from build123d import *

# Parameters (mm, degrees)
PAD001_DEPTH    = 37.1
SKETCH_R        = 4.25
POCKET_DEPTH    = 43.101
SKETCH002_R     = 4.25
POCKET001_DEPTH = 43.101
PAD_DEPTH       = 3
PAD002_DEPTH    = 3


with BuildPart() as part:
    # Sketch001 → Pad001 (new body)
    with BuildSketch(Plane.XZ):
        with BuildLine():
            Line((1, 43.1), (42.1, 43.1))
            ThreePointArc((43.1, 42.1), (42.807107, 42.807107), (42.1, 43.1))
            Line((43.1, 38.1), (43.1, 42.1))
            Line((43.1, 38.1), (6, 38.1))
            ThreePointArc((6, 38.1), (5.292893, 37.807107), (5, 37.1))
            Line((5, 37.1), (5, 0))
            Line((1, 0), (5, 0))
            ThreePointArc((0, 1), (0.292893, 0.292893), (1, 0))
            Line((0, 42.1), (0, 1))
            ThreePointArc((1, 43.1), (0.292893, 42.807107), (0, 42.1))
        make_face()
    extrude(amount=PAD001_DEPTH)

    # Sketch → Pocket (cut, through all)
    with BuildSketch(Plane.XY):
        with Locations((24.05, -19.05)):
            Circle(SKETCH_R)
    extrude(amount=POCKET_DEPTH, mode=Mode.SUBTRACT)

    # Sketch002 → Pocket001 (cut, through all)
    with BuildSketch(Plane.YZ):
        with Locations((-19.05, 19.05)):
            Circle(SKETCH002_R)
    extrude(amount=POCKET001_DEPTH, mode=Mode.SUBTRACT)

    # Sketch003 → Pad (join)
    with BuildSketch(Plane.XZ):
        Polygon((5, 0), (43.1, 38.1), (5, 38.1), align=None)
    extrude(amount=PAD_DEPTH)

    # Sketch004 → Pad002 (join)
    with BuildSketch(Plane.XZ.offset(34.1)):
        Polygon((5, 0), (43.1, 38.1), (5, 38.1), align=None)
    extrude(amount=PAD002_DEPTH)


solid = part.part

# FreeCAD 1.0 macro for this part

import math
import FreeCAD as App
import Part
import Sketcher

V = App.Vector


def add_polygon(sketch, points):
    """Adds a closed chain of lines whose ends are joined by coincident constraints."""
    first, n = sketch.GeometryCount, len(points)
    for a, b in zip(points, points[1:] + points[:1]):
        sketch.addGeometry(Part.LineSegment(App.Vector(*a, 0), App.Vector(*b, 0)), False)
    for i in range(n):
        sketch.addConstraint(Sketcher.Constraint("Coincident", first + i, 2, first + (i + 1) % n, 1))

doc = App.newDocument("Part")
body = doc.addObject("PartDesign::Body", "Body")

sketch1 = body.newObject("Sketcher::SketchObject", "Sketch")
sketch1.AttachmentSupport = (doc.getObject("XZ_Plane"), [""])
sketch1.MapMode = "FlatFace"
sketch1.addGeometry(Part.LineSegment(V(42.1, 43.1, 0), V(1, 43.1, 0)), False)
sketch1.addGeometry(Part.ArcOfCircle(Part.Circle(V(1, 42.1, 0), V(0, 0, 1), 1), math.radians(90), math.radians(180)), False)
sketch1.addGeometry(Part.LineSegment(V(0, 42.1, 0), V(0, 1, 0)), False)
sketch1.addGeometry(Part.ArcOfCircle(Part.Circle(V(1, 1, 0), V(0, 0, 1), 1), math.radians(180), math.radians(270)), False)
sketch1.addGeometry(Part.LineSegment(V(1, 0, 0), V(5, 0, 0)), False)
sketch1.addGeometry(Part.LineSegment(V(5, 0, 0), V(5, 37.1, 0)), False)
sketch1.addGeometry(Part.ArcOfCircle(Part.Circle(V(6, 37.1, 0), V(0, 0, 1), 1), math.radians(90), math.radians(180)), False)
sketch1.addGeometry(Part.LineSegment(V(6, 38.1, 0), V(43.1, 38.1, 0)), False)
sketch1.addGeometry(Part.LineSegment(V(43.1, 38.1, 0), V(43.1, 42.1, 0)), False)
sketch1.addGeometry(Part.ArcOfCircle(Part.Circle(V(42.1, 42.1, 0), V(0, 0, 1), 1), math.radians(0), math.radians(90)), False)
sketch1.addConstraint(Sketcher.Constraint("Tangent", 0, 2, 1, 1))
sketch1.addConstraint(Sketcher.Constraint("Tangent", 1, 2, 2, 1))
sketch1.addConstraint(Sketcher.Constraint("Tangent", 2, 2, 3, 1))
sketch1.addConstraint(Sketcher.Constraint("Tangent", 3, 2, 4, 1))
sketch1.addConstraint(Sketcher.Constraint("Coincident", 4, 2, 5, 1))
sketch1.addConstraint(Sketcher.Constraint("Tangent", 5, 2, 6, 2))
sketch1.addConstraint(Sketcher.Constraint("Tangent", 6, 1, 7, 1))
sketch1.addConstraint(Sketcher.Constraint("Coincident", 7, 2, 8, 1))
sketch1.addConstraint(Sketcher.Constraint("Tangent", 8, 2, 9, 1))
sketch1.addConstraint(Sketcher.Constraint("Tangent", 9, 2, 0, 1))
sketch1.addConstraint(Sketcher.Constraint("Horizontal", 0))
sketch1.addConstraint(Sketcher.Constraint("Vertical", 2))
sketch1.addConstraint(Sketcher.Constraint("Horizontal", 4))
sketch1.addConstraint(Sketcher.Constraint("Vertical", 5))
sketch1.addConstraint(Sketcher.Constraint("Horizontal", 7))
sketch1.addConstraint(Sketcher.Constraint("Vertical", 8))
sketch1.addConstraint(Sketcher.Constraint("Equal", 1, 3))
sketch1.addConstraint(Sketcher.Constraint("Equal", 3, 6))
sketch1.addConstraint(Sketcher.Constraint("Equal", 6, 9))
sketch1.addConstraint(Sketcher.Constraint("PointOnObject", 1, 2, -2))
sketch1.addConstraint(Sketcher.Constraint("PointOnObject", 3, 2, -1))
sketch1.addConstraint(Sketcher.Constraint("Equal", 0, 2))
sketch1.addConstraint(Sketcher.Constraint("Equal", 7, 5))
sketch1.addConstraint(Sketcher.Constraint("Radius", 1, 0.999999))
sketch1.addConstraint(Sketcher.Constraint("DistanceX", 4, 1, 4, 2, 4.0))
sketch1.addConstraint(Sketcher.Constraint("DistanceX", 0, 2, 0, 1, 41.1))
pad1 = body.newObject("PartDesign::Pad", "Pad")
pad1.Profile = sketch1
pad1.Length = 37.1

sketch2 = body.newObject("Sketcher::SketchObject", "Sketch001")
sketch2.AttachmentSupport = (doc.getObject("XY_Plane"), [""])
sketch2.MapMode = "FlatFace"
sketch2.addGeometry(Part.Circle(V(24.1, -19.1, 0), V(0, 0, 1), 4.2), False)
sketch2.addConstraint(Sketcher.Constraint("Diameter", 0, 8.5))
sketch2.addConstraint(Sketcher.Constraint("DistanceX", -1, 1, 0, 3, 24.05))
sketch2.addConstraint(Sketcher.Constraint("DistanceY", 0, 3, -1, 1, 19.05))
pocket1 = body.newObject("PartDesign::Pocket", "Pocket")
pocket1.Profile = sketch2
pocket1.Type = "ThroughAll"
pocket1.Reversed = True

sketch3 = body.newObject("Sketcher::SketchObject", "Sketch002")
sketch3.AttachmentSupport = (doc.getObject("YZ_Plane"), [""])
sketch3.MapMode = "FlatFace"
sketch3.addGeometry(Part.Circle(V(-19.1, 19.1, 0), V(0, 0, 1), 4.2), False)
sketch3.addConstraint(Sketcher.Constraint("Diameter", 0, 8.5))
sketch3.addConstraint(Sketcher.Constraint("DistanceX", 0, 3, -1, 1, 19.05))
sketch3.addConstraint(Sketcher.Constraint("DistanceY", -1, 1, 0, 3, 19.05))
pocket2 = body.newObject("PartDesign::Pocket", "Pocket001")
pocket2.Profile = sketch3
pocket2.Type = "ThroughAll"
pocket2.Reversed = True

sketch4 = body.newObject("Sketcher::SketchObject", "Sketch003")
sketch4.AttachmentSupport = (doc.getObject("XZ_Plane"), [""])
sketch4.MapMode = "FlatFace"
add_polygon(sketch4, [(5, 0), (43, 38), (5, 38)])
sketch4.addConstraint(Sketcher.Constraint("Horizontal", 1))
sketch4.addConstraint(Sketcher.Constraint("Vertical", 2))
sketch4.addConstraint(Sketcher.Constraint("PointOnObject", 2, 2, -1))
sketch4.addConstraint(Sketcher.Constraint("Equal", 1, 2))
sketch4.addConstraint(Sketcher.Constraint("DistanceX", 1, 2, 1, 1, 38.1))
sketch4.addConstraint(Sketcher.Constraint("DistanceX", -1, 1, 1, 2, 5.0))
pad2 = body.newObject("PartDesign::Pad", "Pad001")
pad2.Profile = sketch4
pad2.Length = 3

sketch5 = body.newObject("Sketcher::SketchObject", "Sketch004")
sketch5.AttachmentSupport = (doc.getObject("XZ_Plane"), [""])
sketch5.MapMode = "FlatFace"
sketch5.AttachmentOffset = App.Placement(V(0, 0, 34.1), App.Rotation())
add_polygon(sketch5, [(5, 0), (43, 38), (5, 38)])
sketch5.addConstraint(Sketcher.Constraint("Horizontal", 1))
sketch5.addConstraint(Sketcher.Constraint("Vertical", 2))
sketch5.addConstraint(Sketcher.Constraint("PointOnObject", 2, 2, -1))
sketch5.addConstraint(Sketcher.Constraint("Equal", 1, 2))
sketch5.addConstraint(Sketcher.Constraint("DistanceX", 1, 2, 1, 1, 38.1))
sketch5.addConstraint(Sketcher.Constraint("DistanceX", -1, 1, 1, 2, 5.0))
pad3 = body.newObject("PartDesign::Pad", "Pad002")
pad3.Profile = sketch5
pad3.Length = 3

doc.recompute()
